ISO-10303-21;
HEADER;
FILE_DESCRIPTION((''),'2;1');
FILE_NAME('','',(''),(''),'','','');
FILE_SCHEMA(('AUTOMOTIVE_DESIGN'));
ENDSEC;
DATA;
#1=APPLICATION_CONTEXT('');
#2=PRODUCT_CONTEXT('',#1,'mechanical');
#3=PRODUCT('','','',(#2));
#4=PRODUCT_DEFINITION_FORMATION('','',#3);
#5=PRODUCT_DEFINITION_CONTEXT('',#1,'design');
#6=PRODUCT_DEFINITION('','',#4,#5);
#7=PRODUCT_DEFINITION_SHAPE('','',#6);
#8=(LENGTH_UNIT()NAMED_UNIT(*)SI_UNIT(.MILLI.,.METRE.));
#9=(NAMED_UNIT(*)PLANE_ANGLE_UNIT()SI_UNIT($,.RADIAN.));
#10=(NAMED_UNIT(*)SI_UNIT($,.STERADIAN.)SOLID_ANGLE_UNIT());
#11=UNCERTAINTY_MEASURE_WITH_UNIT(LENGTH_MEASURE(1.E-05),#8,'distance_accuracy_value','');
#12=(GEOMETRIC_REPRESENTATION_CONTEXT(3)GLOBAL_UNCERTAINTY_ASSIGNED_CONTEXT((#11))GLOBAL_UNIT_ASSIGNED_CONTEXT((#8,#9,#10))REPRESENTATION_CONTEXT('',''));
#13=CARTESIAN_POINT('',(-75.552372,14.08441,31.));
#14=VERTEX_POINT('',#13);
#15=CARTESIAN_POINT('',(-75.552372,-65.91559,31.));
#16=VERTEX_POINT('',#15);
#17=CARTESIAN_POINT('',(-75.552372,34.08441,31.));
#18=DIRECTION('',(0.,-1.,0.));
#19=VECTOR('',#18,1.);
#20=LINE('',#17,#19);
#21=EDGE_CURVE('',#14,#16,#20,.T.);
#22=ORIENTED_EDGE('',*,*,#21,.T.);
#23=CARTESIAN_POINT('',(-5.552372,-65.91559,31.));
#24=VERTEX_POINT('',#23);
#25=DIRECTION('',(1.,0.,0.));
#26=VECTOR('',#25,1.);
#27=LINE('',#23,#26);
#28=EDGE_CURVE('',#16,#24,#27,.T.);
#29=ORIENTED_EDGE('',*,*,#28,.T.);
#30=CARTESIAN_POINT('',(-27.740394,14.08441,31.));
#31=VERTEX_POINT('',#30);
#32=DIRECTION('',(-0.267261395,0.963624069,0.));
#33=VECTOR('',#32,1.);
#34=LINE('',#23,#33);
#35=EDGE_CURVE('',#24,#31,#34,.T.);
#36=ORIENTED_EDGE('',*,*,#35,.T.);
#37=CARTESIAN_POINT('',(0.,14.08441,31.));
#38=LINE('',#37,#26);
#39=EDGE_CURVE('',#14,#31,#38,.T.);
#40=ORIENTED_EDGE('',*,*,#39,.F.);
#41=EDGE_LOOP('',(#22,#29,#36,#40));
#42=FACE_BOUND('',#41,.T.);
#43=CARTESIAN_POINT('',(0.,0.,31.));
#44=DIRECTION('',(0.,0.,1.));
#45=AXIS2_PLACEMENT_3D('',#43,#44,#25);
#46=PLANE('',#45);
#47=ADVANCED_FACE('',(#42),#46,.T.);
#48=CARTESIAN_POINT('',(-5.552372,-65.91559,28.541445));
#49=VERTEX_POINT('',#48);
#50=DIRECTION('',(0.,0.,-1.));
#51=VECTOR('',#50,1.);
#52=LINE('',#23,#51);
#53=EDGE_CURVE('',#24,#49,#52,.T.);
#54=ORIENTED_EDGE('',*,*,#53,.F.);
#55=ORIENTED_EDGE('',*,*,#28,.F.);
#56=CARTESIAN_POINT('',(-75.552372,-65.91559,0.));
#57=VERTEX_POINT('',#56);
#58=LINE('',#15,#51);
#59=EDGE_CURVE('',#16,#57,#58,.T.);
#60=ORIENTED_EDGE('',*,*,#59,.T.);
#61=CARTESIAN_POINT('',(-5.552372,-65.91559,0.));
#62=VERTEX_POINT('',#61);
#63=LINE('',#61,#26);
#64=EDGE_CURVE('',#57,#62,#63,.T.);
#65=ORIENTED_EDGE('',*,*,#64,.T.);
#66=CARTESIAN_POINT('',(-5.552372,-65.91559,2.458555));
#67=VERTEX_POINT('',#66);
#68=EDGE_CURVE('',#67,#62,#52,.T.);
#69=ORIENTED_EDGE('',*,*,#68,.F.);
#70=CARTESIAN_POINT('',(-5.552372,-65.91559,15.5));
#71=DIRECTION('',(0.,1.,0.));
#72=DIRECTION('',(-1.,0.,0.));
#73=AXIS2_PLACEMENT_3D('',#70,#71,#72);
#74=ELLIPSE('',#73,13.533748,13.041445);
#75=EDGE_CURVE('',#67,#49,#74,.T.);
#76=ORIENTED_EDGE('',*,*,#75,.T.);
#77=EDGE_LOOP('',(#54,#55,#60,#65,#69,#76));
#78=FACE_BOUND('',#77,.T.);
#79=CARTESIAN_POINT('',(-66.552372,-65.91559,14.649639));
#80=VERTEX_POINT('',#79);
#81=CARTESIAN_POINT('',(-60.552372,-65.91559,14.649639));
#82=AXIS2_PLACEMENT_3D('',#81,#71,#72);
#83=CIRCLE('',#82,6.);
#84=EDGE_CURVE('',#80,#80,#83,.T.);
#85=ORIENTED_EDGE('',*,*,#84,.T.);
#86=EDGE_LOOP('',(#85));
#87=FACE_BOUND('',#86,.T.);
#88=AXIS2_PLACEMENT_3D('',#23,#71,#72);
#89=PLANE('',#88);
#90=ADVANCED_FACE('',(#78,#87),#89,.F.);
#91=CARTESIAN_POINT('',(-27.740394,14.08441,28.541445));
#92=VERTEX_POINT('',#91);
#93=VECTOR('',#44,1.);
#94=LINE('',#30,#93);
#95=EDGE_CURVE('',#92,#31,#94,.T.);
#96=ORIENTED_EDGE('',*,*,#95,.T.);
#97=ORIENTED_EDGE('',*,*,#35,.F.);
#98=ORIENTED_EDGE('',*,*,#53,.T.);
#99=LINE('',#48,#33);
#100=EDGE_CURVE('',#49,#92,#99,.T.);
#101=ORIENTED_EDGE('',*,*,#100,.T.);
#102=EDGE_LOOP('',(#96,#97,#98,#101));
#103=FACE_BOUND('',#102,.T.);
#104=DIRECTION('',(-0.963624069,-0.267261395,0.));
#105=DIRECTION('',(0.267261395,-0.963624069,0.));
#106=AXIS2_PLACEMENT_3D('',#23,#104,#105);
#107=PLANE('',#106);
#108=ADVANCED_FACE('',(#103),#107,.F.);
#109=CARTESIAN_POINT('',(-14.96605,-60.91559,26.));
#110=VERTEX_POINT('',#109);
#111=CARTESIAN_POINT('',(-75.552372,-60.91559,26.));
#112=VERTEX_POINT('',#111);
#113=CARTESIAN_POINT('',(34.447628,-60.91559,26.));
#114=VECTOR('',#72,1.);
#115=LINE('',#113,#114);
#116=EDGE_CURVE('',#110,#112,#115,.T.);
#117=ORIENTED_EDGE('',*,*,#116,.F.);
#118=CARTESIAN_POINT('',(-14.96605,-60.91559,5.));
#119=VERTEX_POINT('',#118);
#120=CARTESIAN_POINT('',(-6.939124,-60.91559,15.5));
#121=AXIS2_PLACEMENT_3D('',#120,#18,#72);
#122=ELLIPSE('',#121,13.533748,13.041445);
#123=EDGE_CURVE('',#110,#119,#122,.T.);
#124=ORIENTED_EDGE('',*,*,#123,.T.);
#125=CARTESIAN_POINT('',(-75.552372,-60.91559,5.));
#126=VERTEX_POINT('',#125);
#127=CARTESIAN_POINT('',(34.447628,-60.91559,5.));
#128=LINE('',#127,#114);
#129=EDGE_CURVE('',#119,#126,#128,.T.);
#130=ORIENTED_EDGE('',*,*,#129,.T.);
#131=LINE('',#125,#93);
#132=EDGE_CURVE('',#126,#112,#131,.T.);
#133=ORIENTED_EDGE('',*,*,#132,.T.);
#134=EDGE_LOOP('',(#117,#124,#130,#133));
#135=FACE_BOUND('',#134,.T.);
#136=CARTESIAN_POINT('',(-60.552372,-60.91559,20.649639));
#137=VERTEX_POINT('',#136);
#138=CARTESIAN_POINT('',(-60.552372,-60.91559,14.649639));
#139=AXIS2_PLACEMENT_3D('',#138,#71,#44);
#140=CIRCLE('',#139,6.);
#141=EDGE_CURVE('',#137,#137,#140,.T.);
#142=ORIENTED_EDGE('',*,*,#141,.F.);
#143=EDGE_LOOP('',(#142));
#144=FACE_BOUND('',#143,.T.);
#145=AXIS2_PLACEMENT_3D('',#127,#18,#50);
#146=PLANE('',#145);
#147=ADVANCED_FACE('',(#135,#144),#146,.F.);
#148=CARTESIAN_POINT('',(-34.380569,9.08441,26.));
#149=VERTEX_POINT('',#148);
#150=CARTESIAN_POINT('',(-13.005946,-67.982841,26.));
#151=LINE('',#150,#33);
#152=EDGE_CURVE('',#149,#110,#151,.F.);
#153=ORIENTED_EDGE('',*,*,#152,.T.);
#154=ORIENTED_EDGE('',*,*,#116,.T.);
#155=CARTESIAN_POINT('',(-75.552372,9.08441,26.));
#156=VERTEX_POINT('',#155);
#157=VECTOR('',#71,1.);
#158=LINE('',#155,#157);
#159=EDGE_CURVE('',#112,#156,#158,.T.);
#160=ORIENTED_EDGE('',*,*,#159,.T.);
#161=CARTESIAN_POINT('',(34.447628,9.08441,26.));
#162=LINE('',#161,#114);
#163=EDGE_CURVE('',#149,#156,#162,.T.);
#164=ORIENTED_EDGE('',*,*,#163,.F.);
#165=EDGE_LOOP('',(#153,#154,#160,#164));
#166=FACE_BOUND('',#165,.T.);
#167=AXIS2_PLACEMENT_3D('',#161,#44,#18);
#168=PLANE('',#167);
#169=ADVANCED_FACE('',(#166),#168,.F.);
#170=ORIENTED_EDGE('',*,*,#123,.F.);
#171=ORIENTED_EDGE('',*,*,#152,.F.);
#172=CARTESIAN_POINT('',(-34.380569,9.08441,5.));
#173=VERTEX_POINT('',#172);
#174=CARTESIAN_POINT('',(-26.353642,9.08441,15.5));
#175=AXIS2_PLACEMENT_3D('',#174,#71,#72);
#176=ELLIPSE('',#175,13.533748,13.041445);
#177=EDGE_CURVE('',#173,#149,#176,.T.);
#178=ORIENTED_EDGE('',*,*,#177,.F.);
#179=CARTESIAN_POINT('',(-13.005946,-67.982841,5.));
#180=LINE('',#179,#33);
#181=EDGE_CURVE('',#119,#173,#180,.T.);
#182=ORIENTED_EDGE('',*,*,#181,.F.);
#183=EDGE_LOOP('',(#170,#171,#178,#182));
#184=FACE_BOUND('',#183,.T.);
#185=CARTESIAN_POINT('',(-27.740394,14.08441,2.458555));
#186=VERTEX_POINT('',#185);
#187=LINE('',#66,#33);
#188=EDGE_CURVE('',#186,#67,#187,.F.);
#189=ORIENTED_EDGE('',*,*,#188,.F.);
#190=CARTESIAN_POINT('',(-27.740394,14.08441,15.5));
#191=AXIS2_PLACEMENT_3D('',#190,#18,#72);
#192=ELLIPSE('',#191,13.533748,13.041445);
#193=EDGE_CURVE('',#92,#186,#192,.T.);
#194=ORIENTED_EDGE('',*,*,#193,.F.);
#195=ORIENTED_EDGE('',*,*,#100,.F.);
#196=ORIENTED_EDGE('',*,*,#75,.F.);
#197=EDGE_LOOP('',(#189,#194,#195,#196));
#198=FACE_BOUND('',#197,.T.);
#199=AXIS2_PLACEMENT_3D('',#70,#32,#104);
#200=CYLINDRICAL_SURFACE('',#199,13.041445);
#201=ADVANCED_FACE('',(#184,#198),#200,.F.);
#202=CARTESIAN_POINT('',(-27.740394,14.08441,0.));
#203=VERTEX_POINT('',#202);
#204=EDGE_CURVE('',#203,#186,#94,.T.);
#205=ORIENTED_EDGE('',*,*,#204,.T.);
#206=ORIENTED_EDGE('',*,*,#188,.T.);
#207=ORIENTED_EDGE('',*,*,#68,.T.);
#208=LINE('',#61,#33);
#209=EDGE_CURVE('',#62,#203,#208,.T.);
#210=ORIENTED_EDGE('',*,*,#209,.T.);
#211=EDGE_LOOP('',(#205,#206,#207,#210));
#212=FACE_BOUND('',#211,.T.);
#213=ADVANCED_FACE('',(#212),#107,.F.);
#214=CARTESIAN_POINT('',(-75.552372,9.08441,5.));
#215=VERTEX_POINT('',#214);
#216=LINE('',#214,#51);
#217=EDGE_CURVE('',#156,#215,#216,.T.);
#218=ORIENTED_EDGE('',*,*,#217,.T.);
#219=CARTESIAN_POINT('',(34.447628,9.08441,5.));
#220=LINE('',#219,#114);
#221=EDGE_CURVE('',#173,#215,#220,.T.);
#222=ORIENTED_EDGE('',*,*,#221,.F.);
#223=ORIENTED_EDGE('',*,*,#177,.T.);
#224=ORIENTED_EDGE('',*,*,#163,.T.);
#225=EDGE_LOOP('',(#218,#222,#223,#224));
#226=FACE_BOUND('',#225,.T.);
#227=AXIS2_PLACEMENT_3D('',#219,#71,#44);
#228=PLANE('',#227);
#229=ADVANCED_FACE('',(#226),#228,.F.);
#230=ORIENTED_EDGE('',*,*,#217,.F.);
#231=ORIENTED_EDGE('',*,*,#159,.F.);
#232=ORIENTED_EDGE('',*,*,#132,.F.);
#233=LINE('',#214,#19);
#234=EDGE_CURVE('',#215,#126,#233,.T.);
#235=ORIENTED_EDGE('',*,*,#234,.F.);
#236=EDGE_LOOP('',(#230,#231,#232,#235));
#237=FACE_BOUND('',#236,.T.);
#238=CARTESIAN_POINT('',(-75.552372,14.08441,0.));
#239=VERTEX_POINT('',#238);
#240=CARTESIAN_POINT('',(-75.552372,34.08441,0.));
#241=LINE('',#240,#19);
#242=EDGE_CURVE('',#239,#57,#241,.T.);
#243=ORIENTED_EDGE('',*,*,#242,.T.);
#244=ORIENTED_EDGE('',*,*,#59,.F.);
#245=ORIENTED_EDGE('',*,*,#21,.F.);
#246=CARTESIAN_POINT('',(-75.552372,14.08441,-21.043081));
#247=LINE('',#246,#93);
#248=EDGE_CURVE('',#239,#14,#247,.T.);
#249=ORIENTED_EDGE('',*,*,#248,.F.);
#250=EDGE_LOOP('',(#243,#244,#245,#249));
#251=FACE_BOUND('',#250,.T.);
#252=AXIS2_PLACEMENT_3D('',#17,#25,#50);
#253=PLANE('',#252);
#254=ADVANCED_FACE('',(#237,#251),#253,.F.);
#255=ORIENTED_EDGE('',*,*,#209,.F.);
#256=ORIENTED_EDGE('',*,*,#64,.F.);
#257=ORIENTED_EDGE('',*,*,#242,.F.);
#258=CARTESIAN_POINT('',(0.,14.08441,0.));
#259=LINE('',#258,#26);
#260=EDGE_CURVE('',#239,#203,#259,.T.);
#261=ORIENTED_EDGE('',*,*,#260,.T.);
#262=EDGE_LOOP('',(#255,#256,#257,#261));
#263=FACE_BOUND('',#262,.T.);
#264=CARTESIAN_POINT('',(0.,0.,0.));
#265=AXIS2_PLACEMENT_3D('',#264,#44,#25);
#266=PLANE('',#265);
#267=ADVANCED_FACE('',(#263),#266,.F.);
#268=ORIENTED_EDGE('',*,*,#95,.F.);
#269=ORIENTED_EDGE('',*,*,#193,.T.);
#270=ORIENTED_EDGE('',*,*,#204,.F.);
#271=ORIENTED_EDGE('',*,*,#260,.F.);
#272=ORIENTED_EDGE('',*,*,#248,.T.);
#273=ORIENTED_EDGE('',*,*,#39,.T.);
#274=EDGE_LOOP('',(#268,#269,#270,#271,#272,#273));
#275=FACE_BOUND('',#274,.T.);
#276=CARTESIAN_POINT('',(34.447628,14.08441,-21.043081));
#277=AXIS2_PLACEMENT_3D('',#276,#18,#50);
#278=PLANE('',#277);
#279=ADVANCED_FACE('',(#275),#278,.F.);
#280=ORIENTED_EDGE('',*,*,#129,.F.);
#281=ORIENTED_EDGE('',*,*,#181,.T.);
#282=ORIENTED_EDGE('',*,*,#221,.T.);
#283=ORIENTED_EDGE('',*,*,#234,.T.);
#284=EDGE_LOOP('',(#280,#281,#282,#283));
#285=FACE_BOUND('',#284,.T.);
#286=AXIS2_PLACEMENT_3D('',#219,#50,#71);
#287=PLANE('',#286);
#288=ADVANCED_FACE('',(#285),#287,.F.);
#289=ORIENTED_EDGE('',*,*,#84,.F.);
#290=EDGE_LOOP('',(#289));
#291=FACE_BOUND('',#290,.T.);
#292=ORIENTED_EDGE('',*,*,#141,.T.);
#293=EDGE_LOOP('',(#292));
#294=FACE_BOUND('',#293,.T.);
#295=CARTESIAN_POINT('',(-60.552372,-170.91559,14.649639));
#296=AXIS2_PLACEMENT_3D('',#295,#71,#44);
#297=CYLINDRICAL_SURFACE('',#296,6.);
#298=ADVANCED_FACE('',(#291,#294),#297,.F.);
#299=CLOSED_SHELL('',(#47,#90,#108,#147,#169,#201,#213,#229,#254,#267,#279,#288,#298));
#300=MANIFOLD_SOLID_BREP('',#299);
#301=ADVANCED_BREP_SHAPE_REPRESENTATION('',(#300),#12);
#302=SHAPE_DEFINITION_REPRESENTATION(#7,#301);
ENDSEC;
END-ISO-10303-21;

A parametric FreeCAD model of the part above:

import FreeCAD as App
import Part
import Sketcher


def add_polygon(sketch, points):
    """Adds a closed chain of lines whose ends are joined by coincident constraints."""
    first, n = sketch.GeometryCount, len(points)
    for a, b in zip(points, points[1:] + points[:1]):
        sketch.addGeometry(Part.LineSegment(App.Vector(*a, 0), App.Vector(*b, 0)), False)
    for i in range(n):
        sketch.addConstraint(Sketcher.Constraint("Coincident", first + i, 2, first + (i + 1) % n, 1))

doc = App.newDocument("Part")
params = doc.addObject("Spreadsheet::Sheet", "Params")
for row, (alias, value) in enumerate([
    ("sketch1_width", "70 mm"),
    ("sketch1_height", "100 mm"),
    ("pad1_length", "31 mm"),
    ("sketch2_width", "70 mm"),
    ("sketch2_height", "21 mm"),
    ("pocket1_length", "110 mm"),
    ("sketch3_diameter", "12 mm"),
    ("pocket2_length", "110 mm"),
    ("pocket3_length", "110 mm"),
], start=1):
    params.set(f"A{row}", alias)
    params.set(f"B{row}", "=" + value)
    params.setAlias(f"B{row}", alias)

body = doc.addObject("PartDesign::Body", "Body")

sketch1 = body.newObject("Sketcher::SketchObject", "Sketch")
sketch1.AttachmentSupport = (doc.getObject("XY_Plane"), [""])
sketch1.MapMode = "FlatFace"
add_polygon(sketch1, [(-75.552372, 34.08441), (-75.552372, -65.91559), (-5.552372, -65.91559), (-33.287399, 34.08441)])
sketch1.addConstraint([
    Sketcher.Constraint("Vertical", 0),
    Sketcher.Constraint("Horizontal", 1),
    Sketcher.Constraint("Horizontal", 3),
    Sketcher.Constraint("DistanceX", 1, 1, 1, 2, 70.0),
    Sketcher.Constraint("DistanceY", 0, 2, 0, 1, 100.0),
    Sketcher.Constraint("DistanceX", 2, 2, -1, 1, 33.287399),
    Sketcher.Constraint("Distance", 2, 103.774909),
    Sketcher.Constraint("DistanceY", 0, 2, -1, 1, 65.91559),
])
sketch1.setExpression("Constraints[7]", "Params.sketch1_width")
sketch1.setExpression("Constraints[8]", "Params.sketch1_height")
pad1 = body.newObject("PartDesign::Pad", "Pad")
pad1.Profile = sketch1
pad1.setExpression("Length", "Params.pad1_length")

sketch2 = body.newObject("Sketcher::SketchObject", "Sketch001")
sketch2.AttachmentSupport = (doc.getObject("YZ_Plane"), [""])
sketch2.MapMode = "FlatFace"
sketch2.AttachmentOffset = App.Placement(App.Vector(0, 0, -75.552372), App.Rotation())
add_polygon(sketch2, [(9.08441, 5), (-60.91559, 5), (-60.91559, 26), (9.08441, 26)])
sketch2.addConstraint([
    Sketcher.Constraint("Horizontal", 0),
    Sketcher.Constraint("Vertical", 1),
    Sketcher.Constraint("Horizontal", 2),
    Sketcher.Constraint("Vertical", 3),
    Sketcher.Constraint("DistanceX", 0, 2, 0, 1, 70.0),
    Sketcher.Constraint("DistanceY", 1, 1, 1, 2, 21.0),
    Sketcher.Constraint("DistanceY", -1, 1, 0, 2, 5.0),
    Sketcher.Constraint("DistanceX", 0, 2, -1, 1, 60.91559),
])
sketch2.setExpression("Constraints[8]", "Params.sketch2_width")
sketch2.setExpression("Constraints[9]", "Params.sketch2_height")
pocket1 = body.newObject("PartDesign::Pocket", "Pocket")
pocket1.Profile = sketch2
pocket1.setExpression("Length", "Params.pocket1_length")
pocket1.Reversed = True

sketch3 = body.newObject("Sketcher::SketchObject", "Sketch002")
sketch3.AttachmentSupport = (doc.getObject("XZ_Plane"), [""])
sketch3.MapMode = "FlatFace"
sketch3.AttachmentOffset = App.Placement(App.Vector(0, 0, 60.91559), App.Rotation())
sketch3.addGeometry(Part.Circle(App.Vector(-60.552372, 14.649639, 0), App.Vector(0, 0, 1), 6), False)
sketch3.addConstraint([
    Sketcher.Constraint("Diameter", 0, 12.0),
    Sketcher.Constraint("DistanceY", -1, 1, 0, 3, 14.649639),
    Sketcher.Constraint("DistanceX", 0, 3, -1, 1, 60.552372),
])
sketch3.setExpression("Constraints[0]", "Params.sketch3_diameter")
pocket2 = body.newObject("PartDesign::Pocket", "Pocket001")
pocket2.Profile = sketch3
pocket2.setExpression("Length", "Params.pocket2_length")
pocket2.Reversed = True

sketch4 = body.newObject("Sketcher::SketchObject", "Sketch003")
sketch4.AttachmentSupport = (doc.getObject("YZ_Plane"), [""])
sketch4.MapMode = "FlatFace"
sketch4.AttachmentOffset = App.Placement(App.Vector(0, 0, -75.552372), App.Rotation())
add_polygon(sketch4, [(35.643262, -21.043081), (14.08441, -21.043081), (14.08441, 61.832977), (35.643262, 61.832977)])
sketch4.addConstraint([
    Sketcher.Constraint("Horizontal", 0),
    Sketcher.Constraint("Vertical", 1),
    Sketcher.Constraint("Horizontal", 2),
    Sketcher.Constraint("Vertical", 3),
    Sketcher.Constraint("DistanceX", 0, 2, 0, 1, 21.558852),
    Sketcher.Constraint("DistanceY", 1, 1, 1, 2, 82.876058),
    Sketcher.Constraint("DistanceX", -1, 1, 0, 2, 14.08441),
    Sketcher.Constraint("DistanceY", 0, 2, -1, 1, 21.043081),
])
pocket3 = body.newObject("PartDesign::Pocket", "Pocket002")
pocket3.Profile = sketch4
pocket3.setExpression("Length", "Params.pocket3_length")
pocket3.Reversed = True

sketch5 = body.newObject("Sketcher::SketchObject", "Sketch004")
sketch5.Placement = App.Placement(App.Vector(-5.608751, 20.222627, 0), App.Rotation(App.Vector(0.963624069, 0.267261395, 0), App.Vector(0, 0, -1), App.Vector(-0.267261395, 0.963624069, 0), "ZXY"))
sketch5.addGeometry(Part.Circle(App.Vector(-22.967092, -15.5, 0), App.Vector(0, 0, 1), 13.041445), False)
sketch5.addConstraint([
    Sketcher.Constraint("DistanceY", 0, 3, -1, 1, 15.5),
    Sketcher.Constraint("Diameter", 0, 26.08289),
    Sketcher.Constraint("DistanceX", 0, 3, -1, 1, 22.967092),
])
pocket4 = body.newObject("PartDesign::Pocket", "Pocket003")
pocket4.Profile = sketch5
pocket4.Type = "ThroughAll"
pocket4.Midplane = True

doc.recompute()
